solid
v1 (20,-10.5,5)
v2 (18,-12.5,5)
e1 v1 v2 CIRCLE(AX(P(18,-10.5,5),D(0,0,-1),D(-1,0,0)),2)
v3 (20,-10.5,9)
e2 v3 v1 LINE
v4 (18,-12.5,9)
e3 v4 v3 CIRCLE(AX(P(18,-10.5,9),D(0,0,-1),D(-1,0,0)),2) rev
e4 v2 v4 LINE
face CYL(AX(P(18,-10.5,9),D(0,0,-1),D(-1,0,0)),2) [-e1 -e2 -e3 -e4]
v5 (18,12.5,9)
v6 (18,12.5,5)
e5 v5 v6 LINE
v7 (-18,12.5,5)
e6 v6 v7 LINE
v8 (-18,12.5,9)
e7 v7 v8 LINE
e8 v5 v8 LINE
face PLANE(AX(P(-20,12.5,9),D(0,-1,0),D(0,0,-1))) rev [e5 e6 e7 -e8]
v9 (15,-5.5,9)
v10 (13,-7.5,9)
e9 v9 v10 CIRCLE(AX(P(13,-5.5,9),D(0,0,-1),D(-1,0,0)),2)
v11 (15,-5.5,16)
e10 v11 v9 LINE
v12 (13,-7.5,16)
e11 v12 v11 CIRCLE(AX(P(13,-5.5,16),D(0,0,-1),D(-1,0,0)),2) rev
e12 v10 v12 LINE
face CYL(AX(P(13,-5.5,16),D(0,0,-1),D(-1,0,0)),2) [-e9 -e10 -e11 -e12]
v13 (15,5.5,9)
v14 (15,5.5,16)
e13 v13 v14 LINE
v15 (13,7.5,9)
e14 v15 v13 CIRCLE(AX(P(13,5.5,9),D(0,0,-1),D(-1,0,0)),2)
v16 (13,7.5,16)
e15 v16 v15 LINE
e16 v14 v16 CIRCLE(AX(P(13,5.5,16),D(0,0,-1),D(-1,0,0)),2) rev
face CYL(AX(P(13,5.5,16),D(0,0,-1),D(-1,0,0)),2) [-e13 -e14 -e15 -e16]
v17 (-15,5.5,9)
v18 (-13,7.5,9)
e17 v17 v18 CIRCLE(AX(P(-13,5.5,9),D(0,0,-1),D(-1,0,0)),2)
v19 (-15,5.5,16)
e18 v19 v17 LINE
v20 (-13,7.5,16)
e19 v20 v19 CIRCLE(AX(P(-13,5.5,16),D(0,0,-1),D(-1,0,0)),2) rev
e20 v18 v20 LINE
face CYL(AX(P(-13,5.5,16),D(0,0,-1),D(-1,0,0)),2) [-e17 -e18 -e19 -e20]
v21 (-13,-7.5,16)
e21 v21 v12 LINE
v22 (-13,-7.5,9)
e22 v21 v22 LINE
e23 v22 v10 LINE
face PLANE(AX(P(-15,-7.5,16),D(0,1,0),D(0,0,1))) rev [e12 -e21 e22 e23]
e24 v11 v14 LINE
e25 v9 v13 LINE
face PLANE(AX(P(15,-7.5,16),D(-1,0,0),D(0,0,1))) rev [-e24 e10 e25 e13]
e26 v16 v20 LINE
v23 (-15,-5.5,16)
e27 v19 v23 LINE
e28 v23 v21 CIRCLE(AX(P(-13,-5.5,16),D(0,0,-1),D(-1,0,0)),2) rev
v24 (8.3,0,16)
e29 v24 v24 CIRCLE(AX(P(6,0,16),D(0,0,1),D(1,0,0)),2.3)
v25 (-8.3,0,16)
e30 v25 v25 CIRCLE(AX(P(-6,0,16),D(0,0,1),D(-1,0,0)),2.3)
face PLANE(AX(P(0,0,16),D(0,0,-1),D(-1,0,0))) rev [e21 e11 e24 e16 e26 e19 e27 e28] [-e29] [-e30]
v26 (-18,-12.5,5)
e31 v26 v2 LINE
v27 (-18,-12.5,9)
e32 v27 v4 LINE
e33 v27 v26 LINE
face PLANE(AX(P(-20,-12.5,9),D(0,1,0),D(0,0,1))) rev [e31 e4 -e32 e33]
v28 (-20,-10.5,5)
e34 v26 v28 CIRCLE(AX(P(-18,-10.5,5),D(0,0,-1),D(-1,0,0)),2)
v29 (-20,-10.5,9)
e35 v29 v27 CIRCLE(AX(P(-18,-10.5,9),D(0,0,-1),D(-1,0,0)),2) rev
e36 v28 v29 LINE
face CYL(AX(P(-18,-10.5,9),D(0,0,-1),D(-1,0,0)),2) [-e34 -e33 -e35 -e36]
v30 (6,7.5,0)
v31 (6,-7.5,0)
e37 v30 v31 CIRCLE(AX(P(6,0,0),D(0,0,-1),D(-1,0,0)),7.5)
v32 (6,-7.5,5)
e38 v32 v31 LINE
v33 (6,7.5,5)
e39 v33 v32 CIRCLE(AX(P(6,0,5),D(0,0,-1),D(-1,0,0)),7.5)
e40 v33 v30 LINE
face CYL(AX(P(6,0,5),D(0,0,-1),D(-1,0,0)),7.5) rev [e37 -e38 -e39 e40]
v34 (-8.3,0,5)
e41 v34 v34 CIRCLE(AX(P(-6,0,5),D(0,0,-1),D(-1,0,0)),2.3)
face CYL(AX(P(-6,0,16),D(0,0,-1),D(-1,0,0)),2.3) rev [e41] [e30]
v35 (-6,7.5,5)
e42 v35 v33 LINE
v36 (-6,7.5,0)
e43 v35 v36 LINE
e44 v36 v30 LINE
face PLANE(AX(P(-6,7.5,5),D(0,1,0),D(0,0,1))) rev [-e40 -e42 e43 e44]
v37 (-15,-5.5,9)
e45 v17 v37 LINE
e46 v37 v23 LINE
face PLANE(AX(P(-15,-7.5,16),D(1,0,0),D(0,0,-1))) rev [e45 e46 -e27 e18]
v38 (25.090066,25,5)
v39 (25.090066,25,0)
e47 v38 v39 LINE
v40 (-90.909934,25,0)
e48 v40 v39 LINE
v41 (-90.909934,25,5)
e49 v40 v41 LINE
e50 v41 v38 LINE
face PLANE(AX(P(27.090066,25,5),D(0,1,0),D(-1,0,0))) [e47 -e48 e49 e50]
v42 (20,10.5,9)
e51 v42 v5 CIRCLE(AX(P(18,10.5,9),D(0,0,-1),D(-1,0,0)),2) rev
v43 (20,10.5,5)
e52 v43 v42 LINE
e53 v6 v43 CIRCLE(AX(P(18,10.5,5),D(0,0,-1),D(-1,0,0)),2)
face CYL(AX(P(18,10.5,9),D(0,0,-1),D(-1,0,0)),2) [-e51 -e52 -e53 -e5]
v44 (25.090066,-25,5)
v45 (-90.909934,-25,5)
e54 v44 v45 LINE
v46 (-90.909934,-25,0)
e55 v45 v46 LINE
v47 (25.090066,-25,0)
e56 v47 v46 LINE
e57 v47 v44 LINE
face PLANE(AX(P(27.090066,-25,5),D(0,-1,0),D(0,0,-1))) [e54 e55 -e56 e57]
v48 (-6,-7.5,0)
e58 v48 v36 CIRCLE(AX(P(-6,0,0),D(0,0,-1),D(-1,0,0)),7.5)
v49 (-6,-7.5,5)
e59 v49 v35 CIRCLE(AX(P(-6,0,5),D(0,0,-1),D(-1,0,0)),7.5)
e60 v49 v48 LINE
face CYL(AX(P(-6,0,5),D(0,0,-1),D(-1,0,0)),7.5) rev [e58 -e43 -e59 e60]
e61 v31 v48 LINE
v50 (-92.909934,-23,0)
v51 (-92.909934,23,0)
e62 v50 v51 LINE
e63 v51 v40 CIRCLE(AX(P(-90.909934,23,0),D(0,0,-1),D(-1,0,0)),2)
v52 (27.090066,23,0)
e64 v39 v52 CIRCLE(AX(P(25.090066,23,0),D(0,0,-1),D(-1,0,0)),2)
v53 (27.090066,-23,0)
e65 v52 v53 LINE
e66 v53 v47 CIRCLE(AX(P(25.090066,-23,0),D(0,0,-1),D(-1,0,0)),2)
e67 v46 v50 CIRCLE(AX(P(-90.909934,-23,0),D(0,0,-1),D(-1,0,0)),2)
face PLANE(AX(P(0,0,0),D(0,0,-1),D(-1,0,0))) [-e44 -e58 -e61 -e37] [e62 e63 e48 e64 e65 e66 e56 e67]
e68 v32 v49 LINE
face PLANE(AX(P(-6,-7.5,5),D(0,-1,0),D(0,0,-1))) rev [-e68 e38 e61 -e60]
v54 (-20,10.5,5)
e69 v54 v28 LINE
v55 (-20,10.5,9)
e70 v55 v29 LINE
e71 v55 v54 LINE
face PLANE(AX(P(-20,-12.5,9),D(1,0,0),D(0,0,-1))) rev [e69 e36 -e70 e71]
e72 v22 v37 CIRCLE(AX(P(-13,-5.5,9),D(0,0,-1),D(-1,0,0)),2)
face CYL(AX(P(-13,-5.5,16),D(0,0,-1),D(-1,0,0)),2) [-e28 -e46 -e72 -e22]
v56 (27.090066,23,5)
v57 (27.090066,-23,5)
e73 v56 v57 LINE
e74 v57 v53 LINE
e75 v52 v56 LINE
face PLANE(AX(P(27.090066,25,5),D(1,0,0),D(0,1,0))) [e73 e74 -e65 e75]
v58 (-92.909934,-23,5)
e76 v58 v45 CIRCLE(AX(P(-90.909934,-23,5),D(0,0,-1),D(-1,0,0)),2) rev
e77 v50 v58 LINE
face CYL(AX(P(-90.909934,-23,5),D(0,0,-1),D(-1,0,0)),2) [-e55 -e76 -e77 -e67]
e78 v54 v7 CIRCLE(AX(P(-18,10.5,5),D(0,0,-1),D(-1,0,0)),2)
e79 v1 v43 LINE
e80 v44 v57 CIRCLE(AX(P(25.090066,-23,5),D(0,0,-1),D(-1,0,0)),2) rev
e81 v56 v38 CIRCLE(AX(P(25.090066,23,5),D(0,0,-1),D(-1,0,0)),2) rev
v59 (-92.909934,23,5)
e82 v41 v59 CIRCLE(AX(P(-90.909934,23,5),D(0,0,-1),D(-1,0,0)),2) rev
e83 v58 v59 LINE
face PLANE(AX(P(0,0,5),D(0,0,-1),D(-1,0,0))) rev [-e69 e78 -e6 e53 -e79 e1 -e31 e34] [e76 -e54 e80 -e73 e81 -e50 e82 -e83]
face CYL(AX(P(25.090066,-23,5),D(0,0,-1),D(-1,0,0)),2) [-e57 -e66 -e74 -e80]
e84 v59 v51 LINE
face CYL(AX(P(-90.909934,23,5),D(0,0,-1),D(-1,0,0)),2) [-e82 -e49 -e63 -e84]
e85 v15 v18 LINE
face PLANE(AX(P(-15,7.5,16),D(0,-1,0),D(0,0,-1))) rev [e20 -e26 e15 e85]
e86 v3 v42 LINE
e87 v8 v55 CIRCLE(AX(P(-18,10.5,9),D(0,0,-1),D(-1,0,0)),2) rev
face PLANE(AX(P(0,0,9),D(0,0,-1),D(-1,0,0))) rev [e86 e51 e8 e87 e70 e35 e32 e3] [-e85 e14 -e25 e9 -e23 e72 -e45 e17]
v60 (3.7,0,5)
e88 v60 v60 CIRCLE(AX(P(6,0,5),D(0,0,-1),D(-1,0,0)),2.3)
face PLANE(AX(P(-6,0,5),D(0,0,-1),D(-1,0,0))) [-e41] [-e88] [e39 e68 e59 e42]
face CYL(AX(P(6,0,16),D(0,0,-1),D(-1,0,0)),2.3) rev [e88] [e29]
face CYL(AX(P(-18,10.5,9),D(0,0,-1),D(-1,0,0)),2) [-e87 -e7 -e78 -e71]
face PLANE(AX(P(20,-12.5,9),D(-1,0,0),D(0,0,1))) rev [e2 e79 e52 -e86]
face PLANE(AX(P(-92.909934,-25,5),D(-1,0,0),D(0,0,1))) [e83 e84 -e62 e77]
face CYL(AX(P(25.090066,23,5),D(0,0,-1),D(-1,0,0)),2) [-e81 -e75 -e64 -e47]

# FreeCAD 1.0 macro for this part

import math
import FreeCAD as App
import Part
import Sketcher


def edges_at(feature, points):
    """Names of the edges that pass closest to the given points."""
    edges = feature.Shape.Edges
    near = lambda p: min(range(len(edges)), key=lambda i: edges[i].distToShape(Part.Vertex(*p))[0])
    return sorted({f"Edge{near(p) + 1}" for p in points})


def add_polygon(sketch, points):
    """Adds a closed chain of lines whose ends are joined by coincident constraints."""
    first, n = sketch.GeometryCount, len(points)
    for a, b in zip(points, points[1:] + points[:1]):
        sketch.addGeometry(Part.LineSegment(App.Vector(*a, 0), App.Vector(*b, 0)), False)
    for i in range(n):
        sketch.addConstraint(Sketcher.Constraint("Coincident", first + i, 2, first + (i + 1) % n, 1))

doc = App.newDocument("Part")
body = doc.addObject("PartDesign::Body", "Body")

sketch1 = doc.addObject("Sketcher::SketchObject", "Sketch")
body.addObject(sketch1)
sketch1.AttachmentSupport = (doc.XY_Plane, [""])
sketch1.MapMode = "FlatFace"
add_polygon(sketch1, [(-15, 7.5), (-15, -7.5), (15, -7.5), (15, 7.5)])
sketch1.addGeometry(Part.Circle(App.Vector(-6, 0, 0), App.Vector(0, 0, 1), 2.3), False)
sketch1.addGeometry(Part.Circle(App.Vector(6, 0, 0), App.Vector(0, 0, 1), 2.3), False)
sketch1.addConstraint([
    Sketcher.Constraint("Vertical", 0),
    Sketcher.Constraint("Horizontal", 1),
    Sketcher.Constraint("Vertical", 2),
    Sketcher.Constraint("Horizontal", 3),
    Sketcher.Constraint("Equal", 4, 5),
    Sketcher.Constraint("Symmetric", 4, 3, 5, 3, -1, 1),
    Sketcher.Constraint("Symmetric", 0, 2, 2, 2, -1, 1),
    Sketcher.Constraint("PointOnObject", 4, 3, -1),
    Sketcher.Constraint("Diameter", 4, 4.6),
    Sketcher.Constraint("DistanceX", 1, 1, 1, 2, 30.0),
    Sketcher.Constraint("DistanceY", 0, 2, 0, 1, 15.0),
    Sketcher.Constraint("DistanceX", 4, 3, -1, 1, 6.0),
])
pad1 = doc.addObject("PartDesign::Pad", "Pad")
body.addObject(pad1)
pad1.Profile = sketch1
pad1.Length = 16

sketch2 = doc.addObject("Sketcher::SketchObject", "Sketch001")
body.addObject(sketch2)
sketch2.AttachmentSupport = (doc.XY_Plane, [""])
sketch2.MapMode = "FlatFace"
add_polygon(sketch2, [(27.090066, 25), (27.090066, -25), (-92.909934, -25), (-92.909934, 25)])
sketch2.addGeometry(Part.Circle(App.Vector(6, 0, 0), App.Vector(0, 0, 1), 3.5), False)
sketch2.addGeometry(Part.Circle(App.Vector(-6, 0, 0), App.Vector(0, 0, 1), 3.5), False)
sketch2.addConstraint([
    Sketcher.Constraint("Vertical", 0),
    Sketcher.Constraint("Horizontal", 1),
    Sketcher.Constraint("Vertical", 2),
    Sketcher.Constraint("Horizontal", 3),
    Sketcher.Constraint("Equal", 4, 5),
    Sketcher.Constraint("Symmetric", 4, 3, 5, 3, -1, 1),
    Sketcher.Constraint("PointOnObject", 4, 3, -1),
    Sketcher.Constraint("Diameter", 4, 7.0),
    Sketcher.Constraint("DistanceX", 1, 2, 1, 1, 120.0),
    Sketcher.Constraint("DistanceY", 0, 2, 0, 1, 50.0),
    Sketcher.Constraint("DistanceX", -1, 1, 4, 3, 6.0),
    Sketcher.Constraint("DistanceY", 0, 2, -1, 1, 25.0),
    Sketcher.Constraint("DistanceX", -1, 1, 0, 2, 27.090066),
])
pad2 = doc.addObject("PartDesign::Pad", "Pad001")
body.addObject(pad2)
pad2.Profile = sketch2
pad2.Length = 5

sketch3 = doc.addObject("Sketcher::SketchObject", "Sketch002")
body.addObject(sketch3)
sketch3.AttachmentSupport = (doc.XY_Plane, [""])
sketch3.MapMode = "FlatFace"
sketch3.AttachmentOffset = App.Placement(App.Vector(0, 0, 5), App.Rotation())
add_polygon(sketch3, [(-20, 12.5), (-20, -12.5), (20, -12.5), (20, 12.5)])
add_polygon(sketch3, [(15, -7.5), (-15, -7.5), (-15, 7.5), (15, 7.5)])
sketch3.addConstraint([
    Sketcher.Constraint("Vertical", 0),
    Sketcher.Constraint("Horizontal", 1),
    Sketcher.Constraint("Vertical", 2),
    Sketcher.Constraint("Horizontal", 3),
    Sketcher.Constraint("Horizontal", 4),
    Sketcher.Constraint("Vertical", 5),
    Sketcher.Constraint("Horizontal", 6),
    Sketcher.Constraint("Vertical", 7),
    Sketcher.Constraint("Symmetric", 0, 2, 2, 2, -1, 1),
    Sketcher.Constraint("Symmetric", 4, 2, 6, 2, -1, 1),
    Sketcher.Constraint("DistanceX", 1, 1, 1, 2, 40.0),
    Sketcher.Constraint("DistanceX", 4, 2, 4, 1, 30.0),
    Sketcher.Constraint("DistanceY", 0, 2, 0, 1, 25.0),
    Sketcher.Constraint("DistanceY", 5, 1, 5, 2, 15.0),
])
pad3 = doc.addObject("PartDesign::Pad", "Pad002")
body.addObject(pad3)
pad3.Profile = sketch3
pad3.Length = 4

sketch4 = doc.addObject("Sketcher::SketchObject", "Sketch003")
body.addObject(sketch4)
sketch4.AttachmentSupport = (doc.XY_Plane, [""])
sketch4.MapMode = "FlatFace"
sketch4.addGeometry([
    Part.LineSegment(App.Vector(-6, 7.5, 0), App.Vector(6, 7.5, 0)),
    Part.ArcOfCircle(Part.Circle(App.Vector(6, 0, 0), App.Vector(0, 0, 1), 7.5), math.radians(-90), math.radians(90)),
    Part.LineSegment(App.Vector(6, -7.5, 0), App.Vector(-6, -7.5, 0)),
    Part.ArcOfCircle(Part.Circle(App.Vector(-6, 0, 0), App.Vector(0, 0, 1), 7.5), math.radians(90), math.radians(270)),
], False)
sketch4.addConstraint([
    Sketcher.Constraint("Tangent", 0, 2, 1, 2),
    Sketcher.Constraint("Tangent", 1, 1, 2, 1),
    Sketcher.Constraint("Tangent", 2, 2, 3, 2),
    Sketcher.Constraint("Tangent", 3, 1, 0, 1),
    Sketcher.Constraint("Horizontal", 0),
    Sketcher.Constraint("Horizontal", 2),
    Sketcher.Constraint("Symmetric", 1, 3, 3, 3, -1, 1),
    Sketcher.Constraint("Radius", 1, 7.5),
    Sketcher.Constraint("DistanceX", 0, 1, 0, 2, 12.0),
])
pocket1 = doc.addObject("PartDesign::Pocket", "Pocket")
body.addObject(pocket1)
pocket1.Profile = sketch4
pocket1.Length = 5
pocket1.Reversed = True
doc.recompute()

fillet = doc.addObject("PartDesign::Fillet", "Fillet")
body.addObject(fillet)
fillet.Base = (pocket1, edges_at(pocket1, [
    (27.09, -25, 2.5),
    (27.09, 25, 2.5),
    (-92.91, 25, 2.5),
    (-92.91, -25, 2.5),
    (20, -12.5, 7),
    (20, 12.5, 7),
    (-20, 12.5, 7),
    (-20, -12.5, 7),
    (15, -7.5, 12.5),
    (-15, -7.5, 12.5),
    (-15, 7.5, 12.5),
    (15, 7.5, 12.5),
]))
fillet.Radius = 2

doc.recompute()
